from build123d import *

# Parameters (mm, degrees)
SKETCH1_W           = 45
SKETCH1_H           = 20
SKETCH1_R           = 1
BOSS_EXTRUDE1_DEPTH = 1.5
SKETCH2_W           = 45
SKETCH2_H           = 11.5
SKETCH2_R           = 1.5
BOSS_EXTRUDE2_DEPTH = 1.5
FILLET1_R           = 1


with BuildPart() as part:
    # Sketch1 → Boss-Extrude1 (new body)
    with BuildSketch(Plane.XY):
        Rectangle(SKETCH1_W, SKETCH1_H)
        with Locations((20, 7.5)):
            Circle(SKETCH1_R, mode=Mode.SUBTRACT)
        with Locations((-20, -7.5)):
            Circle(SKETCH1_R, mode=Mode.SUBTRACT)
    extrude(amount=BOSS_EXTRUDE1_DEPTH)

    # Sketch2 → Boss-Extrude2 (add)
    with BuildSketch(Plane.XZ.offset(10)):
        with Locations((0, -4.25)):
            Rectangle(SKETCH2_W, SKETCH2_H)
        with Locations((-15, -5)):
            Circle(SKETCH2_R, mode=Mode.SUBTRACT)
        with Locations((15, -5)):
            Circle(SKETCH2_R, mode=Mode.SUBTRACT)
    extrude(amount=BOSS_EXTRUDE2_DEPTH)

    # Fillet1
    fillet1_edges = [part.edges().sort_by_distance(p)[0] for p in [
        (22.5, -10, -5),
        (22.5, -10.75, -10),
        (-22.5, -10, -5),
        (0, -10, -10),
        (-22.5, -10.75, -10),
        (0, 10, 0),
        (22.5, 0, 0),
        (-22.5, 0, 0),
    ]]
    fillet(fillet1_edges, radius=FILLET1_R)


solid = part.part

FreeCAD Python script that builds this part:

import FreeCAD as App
import Part
import Sketcher
Q = App.Units.Quantity


def edges_at(feature, points):
    """Names of the edges that pass closest to the given points."""
    edges = feature.Shape.Edges
    near = lambda p: min(range(len(edges)), key=lambda i: edges[i].distToShape(Part.Vertex(*p))[0])
    return sorted({f"Edge{near(p) + 1}" for p in points})

doc = App.newDocument("Part")
body = doc.addObject("PartDesign::Body", "Body")

# Sketch on XY plane
sketch1 = body.newObject("Sketcher::SketchObject", "Sketch")
sketch1.AttachmentSupport = (doc.getObject("XY_Plane"), [""])
sketch1.MapMode = "FlatFace"
sketch1.addGeometry([
    Part.LineSegment(App.Vector(-22.5, 10, 0), App.Vector(-22.5, -10, 0)),  # 0
    Part.LineSegment(App.Vector(-22.5, -10, 0), App.Vector(22.5, -10, 0)),  # 1
    Part.LineSegment(App.Vector(22.5, -10, 0), App.Vector(22.5, 10, 0)),  # 2
    Part.LineSegment(App.Vector(22.5, 10, 0), App.Vector(-22.5, 10, 0)),  # 3
    Part.Circle(App.Vector(-20, -7.5, 0), App.Vector(0, 0, 1), 1),  # 4
    Part.Circle(App.Vector(20, 7.5, 0), App.Vector(0, 0, 1), 1),  # 5
], False)
sketch1.addConstraint([
    Sketcher.Constraint("Coincident", 0, 2, 1, 1),
    Sketcher.Constraint("Coincident", 1, 2, 2, 1),
    Sketcher.Constraint("Coincident", 2, 2, 3, 1),
    Sketcher.Constraint("Coincident", 3, 2, 0, 1),
    Sketcher.Constraint("Vertical", 0),
    Sketcher.Constraint("Horizontal", 1),
    Sketcher.Constraint("Vertical", 2),
    Sketcher.Constraint("Horizontal", 3),
    Sketcher.Constraint("Equal", 4, 5),
    Sketcher.Constraint("Symmetric", 4, 3, 5, 3, -1, 1),
    Sketcher.Constraint("Symmetric", 0, 2, 2, 2, -1, 1),
    Sketcher.Constraint("Diameter", 4, Q("2 mm")),
    Sketcher.Constraint("DistanceX", 1, 1, 1, 2, Q("45 mm")),
    Sketcher.Constraint("DistanceY", 0, 2, 0, 1, Q("20 mm")),
    Sketcher.Constraint("DistanceX", 4, 3, -1, 1, Q("20 mm")),
    Sketcher.Constraint("DistanceY", 4, 3, 5, 3, Q("15 mm")),
])
pad1 = body.newObject("PartDesign::Pad", "Pad")
pad1.Profile = sketch1
pad1.Length = 1.5

# Sketch on XZ plane
sketch2 = body.newObject("Sketcher::SketchObject", "Sketch001")
sketch2.AttachmentSupport = (doc.getObject("XZ_Plane"), [""])
sketch2.MapMode = "FlatFace"
sketch2.AttachmentOffset = App.Placement(App.Vector(0, 0, 10), App.Rotation())
sketch2.addGeometry([
    Part.LineSegment(App.Vector(-22.5, 1.5, 0), App.Vector(-22.5, -10, 0)),  # 0
    Part.LineSegment(App.Vector(-22.5, -10, 0), App.Vector(22.5, -10, 0)),  # 1
    Part.LineSegment(App.Vector(22.5, -10, 0), App.Vector(22.5, 1.5, 0)),  # 2
    Part.LineSegment(App.Vector(22.5, 1.5, 0), App.Vector(-22.5, 1.5, 0)),  # 3
    Part.Circle(App.Vector(-15, -5, 0), App.Vector(0, 0, 1), 1.5),  # 4
    Part.Circle(App.Vector(15, -5, 0), App.Vector(0, 0, 1), 1.5),  # 5
], False)
sketch2.addConstraint([
    Sketcher.Constraint("Coincident", 0, 2, 1, 1),
    Sketcher.Constraint("Coincident", 1, 2, 2, 1),
    Sketcher.Constraint("Coincident", 2, 2, 3, 1),
    Sketcher.Constraint("Coincident", 3, 2, 0, 1),
    Sketcher.Constraint("Vertical", 0),
    Sketcher.Constraint("Horizontal", 1),
    Sketcher.Constraint("Vertical", 2),
    Sketcher.Constraint("Horizontal", 3),
    Sketcher.Constraint("Equal", 4, 5),
    Sketcher.Constraint("Symmetric", 4, 3, 5, 3, -2),
    Sketcher.Constraint("Diameter", 4, Q("3 mm")),
    Sketcher.Constraint("DistanceX", 1, 1, 1, 2, Q("45 mm")),
    Sketcher.Constraint("DistanceY", 0, 2, 0, 1, Q("11.5 mm")),
    Sketcher.Constraint("DistanceX", 4, 3, -1, 1, Q("15 mm")),
    Sketcher.Constraint("DistanceY", 4, 3, -1, 1, Q("5 mm")),
    Sketcher.Constraint("DistanceY", 0, 2, -1, 1, Q("10 mm")),
    Sketcher.Constraint("DistanceX", 0, 2, -1, 1, Q("22.5 mm")),
])
pad2 = body.newObject("PartDesign::Pad", "Pad001")
pad2.Profile = sketch2
pad2.Length = 1.5
doc.recompute()

fillet = body.newObject("PartDesign::Fillet", "Fillet")
fillet.Base = (pad2, edges_at(pad2, [
    (22.5, -10, -5),
    (22.5, -10.75, -10),
    (-22.5, -10, -5),
    (0, -10, -10),
    (-22.5, -10.75, -10),
    (0, 10, 0),
    (22.5, 0, 0),
    (-22.5, 0, 0),
]))
fillet.Radius = 1

doc.recompute()
